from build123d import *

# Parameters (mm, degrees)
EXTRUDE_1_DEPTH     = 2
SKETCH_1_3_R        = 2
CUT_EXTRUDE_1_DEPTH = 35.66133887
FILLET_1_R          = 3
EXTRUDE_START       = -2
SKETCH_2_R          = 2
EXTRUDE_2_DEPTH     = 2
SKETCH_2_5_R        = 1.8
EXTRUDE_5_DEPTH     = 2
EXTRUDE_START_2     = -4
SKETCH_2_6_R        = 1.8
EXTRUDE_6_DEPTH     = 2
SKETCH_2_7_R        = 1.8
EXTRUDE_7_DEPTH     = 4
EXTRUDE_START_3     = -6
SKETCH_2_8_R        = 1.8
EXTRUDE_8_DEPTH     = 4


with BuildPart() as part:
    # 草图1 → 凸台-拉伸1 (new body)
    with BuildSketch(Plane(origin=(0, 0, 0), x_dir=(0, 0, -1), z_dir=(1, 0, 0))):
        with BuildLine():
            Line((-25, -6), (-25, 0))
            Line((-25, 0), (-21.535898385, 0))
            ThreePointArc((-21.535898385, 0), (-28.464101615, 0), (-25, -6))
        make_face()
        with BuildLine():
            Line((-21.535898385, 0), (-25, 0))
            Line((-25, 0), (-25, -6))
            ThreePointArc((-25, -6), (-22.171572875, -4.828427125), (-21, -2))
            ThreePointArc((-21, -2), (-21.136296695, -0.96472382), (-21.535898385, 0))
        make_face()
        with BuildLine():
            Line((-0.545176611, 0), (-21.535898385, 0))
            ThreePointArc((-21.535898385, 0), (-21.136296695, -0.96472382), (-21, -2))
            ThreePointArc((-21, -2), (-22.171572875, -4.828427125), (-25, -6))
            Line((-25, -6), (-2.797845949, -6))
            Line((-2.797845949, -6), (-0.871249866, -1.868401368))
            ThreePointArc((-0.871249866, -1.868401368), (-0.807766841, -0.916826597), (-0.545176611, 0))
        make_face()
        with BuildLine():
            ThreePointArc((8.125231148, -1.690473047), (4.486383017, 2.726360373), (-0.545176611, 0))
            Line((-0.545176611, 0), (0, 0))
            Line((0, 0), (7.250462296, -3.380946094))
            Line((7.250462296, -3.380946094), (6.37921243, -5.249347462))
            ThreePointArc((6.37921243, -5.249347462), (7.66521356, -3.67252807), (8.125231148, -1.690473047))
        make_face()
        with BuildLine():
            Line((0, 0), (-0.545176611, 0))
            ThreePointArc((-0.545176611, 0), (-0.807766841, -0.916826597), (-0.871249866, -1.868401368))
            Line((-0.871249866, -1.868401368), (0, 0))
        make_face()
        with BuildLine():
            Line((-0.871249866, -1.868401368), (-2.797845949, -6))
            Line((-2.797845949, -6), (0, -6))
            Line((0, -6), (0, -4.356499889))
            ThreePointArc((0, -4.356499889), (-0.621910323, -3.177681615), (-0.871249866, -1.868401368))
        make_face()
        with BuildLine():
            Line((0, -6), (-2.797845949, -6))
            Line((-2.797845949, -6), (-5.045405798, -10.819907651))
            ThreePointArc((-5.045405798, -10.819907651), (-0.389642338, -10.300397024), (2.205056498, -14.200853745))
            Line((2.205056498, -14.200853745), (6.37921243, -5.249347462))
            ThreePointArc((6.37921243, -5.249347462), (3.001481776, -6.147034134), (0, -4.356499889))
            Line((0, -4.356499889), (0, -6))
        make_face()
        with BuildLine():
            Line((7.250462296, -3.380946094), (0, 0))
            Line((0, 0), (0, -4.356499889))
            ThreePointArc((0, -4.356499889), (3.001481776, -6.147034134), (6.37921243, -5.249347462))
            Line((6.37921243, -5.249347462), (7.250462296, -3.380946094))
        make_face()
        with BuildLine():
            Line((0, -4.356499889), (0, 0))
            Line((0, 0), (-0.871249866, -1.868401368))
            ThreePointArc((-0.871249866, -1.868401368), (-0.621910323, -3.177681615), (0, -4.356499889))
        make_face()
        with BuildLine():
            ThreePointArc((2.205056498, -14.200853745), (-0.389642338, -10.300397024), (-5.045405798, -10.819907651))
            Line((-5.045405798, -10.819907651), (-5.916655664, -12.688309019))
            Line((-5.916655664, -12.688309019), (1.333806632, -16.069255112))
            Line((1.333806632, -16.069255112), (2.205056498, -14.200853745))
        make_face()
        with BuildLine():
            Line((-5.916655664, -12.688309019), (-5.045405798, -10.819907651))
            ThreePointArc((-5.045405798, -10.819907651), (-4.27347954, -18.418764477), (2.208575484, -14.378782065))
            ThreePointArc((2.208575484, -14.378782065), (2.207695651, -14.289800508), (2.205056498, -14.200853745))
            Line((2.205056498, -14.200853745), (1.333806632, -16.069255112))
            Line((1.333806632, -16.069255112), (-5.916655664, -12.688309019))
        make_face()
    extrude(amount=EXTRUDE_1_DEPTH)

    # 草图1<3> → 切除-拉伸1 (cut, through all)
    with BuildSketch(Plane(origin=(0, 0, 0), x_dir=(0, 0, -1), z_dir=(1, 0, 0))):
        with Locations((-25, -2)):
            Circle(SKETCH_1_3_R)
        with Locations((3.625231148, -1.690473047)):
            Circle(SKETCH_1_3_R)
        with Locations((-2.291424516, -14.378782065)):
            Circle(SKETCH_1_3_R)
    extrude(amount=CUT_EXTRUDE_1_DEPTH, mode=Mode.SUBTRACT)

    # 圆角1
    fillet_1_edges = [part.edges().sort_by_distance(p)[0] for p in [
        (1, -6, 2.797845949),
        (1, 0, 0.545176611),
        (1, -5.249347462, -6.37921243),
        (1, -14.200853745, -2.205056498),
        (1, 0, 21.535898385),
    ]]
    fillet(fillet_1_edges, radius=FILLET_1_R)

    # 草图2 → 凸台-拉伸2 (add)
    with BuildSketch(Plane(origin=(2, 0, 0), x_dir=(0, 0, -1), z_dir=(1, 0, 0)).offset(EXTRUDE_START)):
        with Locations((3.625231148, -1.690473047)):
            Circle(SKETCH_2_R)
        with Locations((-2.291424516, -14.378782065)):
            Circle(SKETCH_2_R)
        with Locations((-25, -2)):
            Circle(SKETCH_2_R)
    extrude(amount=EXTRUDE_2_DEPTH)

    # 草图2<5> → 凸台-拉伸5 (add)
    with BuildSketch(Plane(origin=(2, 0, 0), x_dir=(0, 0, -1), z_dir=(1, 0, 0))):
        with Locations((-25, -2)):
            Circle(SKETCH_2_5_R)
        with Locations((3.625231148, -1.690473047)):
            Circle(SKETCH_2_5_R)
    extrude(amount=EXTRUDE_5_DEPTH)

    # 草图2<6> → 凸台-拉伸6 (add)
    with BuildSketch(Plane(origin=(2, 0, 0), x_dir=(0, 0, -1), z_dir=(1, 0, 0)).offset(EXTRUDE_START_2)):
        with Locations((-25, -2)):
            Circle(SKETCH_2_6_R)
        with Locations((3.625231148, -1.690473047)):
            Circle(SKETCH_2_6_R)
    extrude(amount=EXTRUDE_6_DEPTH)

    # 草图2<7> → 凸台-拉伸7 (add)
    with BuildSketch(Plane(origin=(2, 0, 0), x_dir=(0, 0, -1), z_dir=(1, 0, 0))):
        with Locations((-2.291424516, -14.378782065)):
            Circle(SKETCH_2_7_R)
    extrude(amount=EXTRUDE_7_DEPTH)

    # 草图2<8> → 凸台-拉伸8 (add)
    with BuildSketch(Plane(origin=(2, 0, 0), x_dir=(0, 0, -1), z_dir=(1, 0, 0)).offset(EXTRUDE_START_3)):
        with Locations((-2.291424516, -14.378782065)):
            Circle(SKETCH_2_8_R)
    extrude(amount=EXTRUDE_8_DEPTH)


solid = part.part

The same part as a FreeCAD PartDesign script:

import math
import FreeCAD as App
import Part
import Sketcher
Q = App.Units.Quantity


def edges_at(feature, points):
    """Names of the edges that pass closest to the given points."""
    edges = feature.Shape.Edges
    near = lambda p: min(range(len(edges)), key=lambda i: edges[i].distToShape(Part.Vertex(*p))[0])
    return sorted({f"Edge{near(p) + 1}" for p in points})

doc = App.newDocument("Part")
body = doc.addObject("PartDesign::Body", "Body")

sketch1 = body.newObject("Sketcher::SketchObject", "Sketch")
sketch1.AttachmentSupport = (doc.getObject("YZ_Plane"), [""])
sketch1.MapMode = "FlatFace"
sketch1.addGeometry(Part.LineSegment(App.Vector(-14.200854, -2.205056, 0), App.Vector(-5.249347, -6.379212, 0)), False)
sketch1.addGeometry(Part.ArcOfCircle(Part.Circle(App.Vector(-1.690473, -3.625231, 0), App.Vector(0, 0, 1), 4.5), math.radians(-142.266044), math.radians(-90)), False)
sketch1.addGeometry(Part.ArcOfCircle(Part.Circle(App.Vector(-1.690473, -3.625231, 0), App.Vector(0, 0, 1), 4.5), math.radians(-90), math.radians(67.934847)), False)
sketch1.addGeometry(Part.LineSegment(App.Vector(0, 0.545177, 0), App.Vector(0, 21.535898, 0)), False)
sketch1.addGeometry(Part.ArcOfCircle(Part.Circle(App.Vector(-2, 25, 0), App.Vector(0, 0, 1), 4), math.radians(-60), math.radians(180)), False)
sketch1.addGeometry(Part.LineSegment(App.Vector(-6, 25, 0), App.Vector(-6, 2.797846, 0)), False)
sketch1.addGeometry(Part.LineSegment(App.Vector(-6, 2.797846, 0), App.Vector(-10.819908, 5.045406, 0)), False)
sketch1.addGeometry(Part.ArcOfCircle(Part.Circle(App.Vector(-14.378782, 2.291425, 0), App.Vector(0, 0, 1), 4.5), math.radians(37.733956), math.radians(270)), False)
sketch1.addGeometry(Part.ArcOfCircle(Part.Circle(App.Vector(-14.378782, 2.291427, 0), App.Vector(0, 0, 1), 4.500002), math.radians(-89.999999), math.radians(-87.733956)), False)
sketch1.addConstraint(Sketcher.Constraint("Coincident", 0, 2, 1, 1))
sketch1.addConstraint(Sketcher.Constraint("Tangent", 1, 2, 2, 1))
sketch1.addConstraint(Sketcher.Constraint("Coincident", 2, 2, 3, 1))
sketch1.addConstraint(Sketcher.Constraint("Coincident", 3, 2, 4, 1))
sketch1.addConstraint(Sketcher.Constraint("Tangent", 4, 2, 5, 1))
sketch1.addConstraint(Sketcher.Constraint("Coincident", 5, 2, 6, 1))
sketch1.addConstraint(Sketcher.Constraint("Coincident", 6, 2, 7, 1))
sketch1.addConstraint(Sketcher.Constraint("Tangent", 7, 2, 8, 1))
sketch1.addConstraint(Sketcher.Constraint("Coincident", 8, 2, 0, 1))
sketch1.addConstraint(Sketcher.Constraint("Vertical", 3))
sketch1.addConstraint(Sketcher.Constraint("Vertical", 5))
sketch1.addConstraint(Sketcher.Constraint("Equal", 1, 2))
sketch1.addConstraint(Sketcher.Constraint("Equal", 2, 7))
sketch1.addConstraint(Sketcher.Constraint("PointOnObject", 2, 2, -2))
sketch1.addConstraint(Sketcher.Constraint("Parallel", 0, 6))
sketch1.addConstraint(Sketcher.Constraint("Vertical", 2, 3, 1, 2))
sketch1.addConstraint(Sketcher.Constraint("Vertical", 8, 3, 7, 2))
sketch1.addConstraint(Sketcher.Constraint("Radius", 4, 4.0))
sketch1.addConstraint(Sketcher.Constraint("Radius", 1, 4.5))
sketch1.addConstraint(Sketcher.Constraint("Angle", 0, Q("-25 deg")))
sketch1.addConstraint(Sketcher.Constraint("DistanceX", 4, 3, -1, 1, 2.0))
sketch1.addConstraint(Sketcher.Constraint("DistanceY", -1, 1, 4, 3, 25.0))
sketch1.addConstraint(Sketcher.Constraint("Radius", 8, 4.500002))
sketch1.addConstraint(Sketcher.Constraint("DistanceY", 3, 1, 3, 2, 20.990722))
sketch1.addConstraint(Sketcher.Constraint("Distance", 6, 5.31818))
sketch1.addConstraint(Sketcher.Constraint("DistanceY", 5, 2, 5, 1, 22.202154))
sketch1.addConstraint(Sketcher.Constraint("DistanceY", 1, 3, -1, 1, 3.625231))
sketch1.addConstraint(Sketcher.Constraint("DistanceX", 7, 3, 1, 3, 12.688309))
sketch1.addConstraint(Sketcher.Constraint("DistanceY", 0, 2, 1, 3, 2.753981))
pad1 = body.newObject("PartDesign::Pad", "Pad")
pad1.Profile = sketch1
pad1.Length = 2

sketch2 = body.newObject("Sketcher::SketchObject", "Sketch001")
sketch2.AttachmentSupport = (doc.getObject("YZ_Plane"), [""])
sketch2.MapMode = "FlatFace"
sketch2.addGeometry(Part.Circle(App.Vector(-2, 25, 0), App.Vector(0, 0, 1), 2), False)
sketch2.addGeometry(Part.Circle(App.Vector(-1.690473, -3.625231, 0), App.Vector(0, 0, 1), 2), False)
sketch2.addGeometry(Part.Circle(App.Vector(-14.378782, 2.291425, 0), App.Vector(0, 0, 1), 2), False)
sketch2.addConstraint(Sketcher.Constraint("Equal", 0, 1))
sketch2.addConstraint(Sketcher.Constraint("Equal", 1, 2))
sketch2.addConstraint(Sketcher.Constraint("Diameter", 0, 4.0))
sketch2.addConstraint(Sketcher.Constraint("DistanceX", 0, 3, -1, 1, 2.0))
sketch2.addConstraint(Sketcher.Constraint("DistanceY", -1, 1, 0, 3, 25.0))
sketch2.addConstraint(Sketcher.Constraint("DistanceY", 1, 3, -1, 1, 3.625231))
sketch2.addConstraint(Sketcher.Constraint("DistanceX", 2, 3, 1, 3, 12.688309))
sketch2.addConstraint(Sketcher.Constraint("DistanceX", 1, 3, -1, 1, 1.690473))
sketch2.addConstraint(Sketcher.Constraint("DistanceY", -1, 1, 2, 3, 2.291425))
pocket1 = body.newObject("PartDesign::Pocket", "Pocket")
pocket1.Profile = sketch2
pocket1.Type = "ThroughAll"
pocket1.Reversed = True
doc.recompute()

fillet = body.newObject("PartDesign::Fillet", "Fillet")
fillet.Base = (pocket1, edges_at(pocket1, [
    (1, -6, 2.798),
    (1, 0, 0.545),
    (1, -5.249, -6.379),
    (1, -14.201, -2.205),
    (1, 0, 21.536),
]))
fillet.Radius = 3

sketch3 = body.newObject("Sketcher::SketchObject", "Sketch002")
sketch3.AttachmentSupport = (doc.getObject("YZ_Plane"), [""])
sketch3.MapMode = "FlatFace"
sketch3.addGeometry(Part.Circle(App.Vector(-1.690473, -3.625231, 0), App.Vector(0, 0, 1), 2), False)
sketch3.addGeometry(Part.Circle(App.Vector(-14.378782, 2.291425, 0), App.Vector(0, 0, 1), 2), False)
sketch3.addGeometry(Part.Circle(App.Vector(-2, 25, 0), App.Vector(0, 0, 1), 2), False)
sketch3.addConstraint(Sketcher.Constraint("Equal", 0, 1))
sketch3.addConstraint(Sketcher.Constraint("Equal", 1, 2))
sketch3.addConstraint(Sketcher.Constraint("Diameter", 0, 4.0))
sketch3.addConstraint(Sketcher.Constraint("DistanceX", 2, 3, -1, 1, 2.0))
sketch3.addConstraint(Sketcher.Constraint("DistanceY", -1, 1, 2, 3, 25.0))
sketch3.addConstraint(Sketcher.Constraint("DistanceY", 0, 3, -1, 1, 3.625231))
sketch3.addConstraint(Sketcher.Constraint("DistanceX", 1, 3, 0, 3, 12.688309))
sketch3.addConstraint(Sketcher.Constraint("DistanceX", 0, 3, -1, 1, 1.690473))
sketch3.addConstraint(Sketcher.Constraint("DistanceY", -1, 1, 1, 3, 2.291425))
pad2 = body.newObject("PartDesign::Pad", "Pad001")
pad2.Profile = sketch3
pad2.Length = 2

sketch4 = body.newObject("Sketcher::SketchObject", "Sketch003")
sketch4.AttachmentSupport = (doc.getObject("YZ_Plane"), [""])
sketch4.MapMode = "FlatFace"
sketch4.AttachmentOffset = App.Placement(App.Vector(0, 0, 2), App.Rotation())
sketch4.addGeometry(Part.Circle(App.Vector(-2, 25, 0), App.Vector(0, 0, 1), 1.8), False)
sketch4.addGeometry(Part.Circle(App.Vector(-1.690473, -3.625231, 0), App.Vector(0, 0, 1), 1.8), False)
sketch4.addConstraint(Sketcher.Constraint("Equal", 0, 1))
sketch4.addConstraint(Sketcher.Constraint("Diameter", 0, 3.6))
sketch4.addConstraint(Sketcher.Constraint("DistanceX", 0, 3, -1, 1, 2.0))
sketch4.addConstraint(Sketcher.Constraint("DistanceY", -1, 1, 0, 3, 25.0))
sketch4.addConstraint(Sketcher.Constraint("DistanceY", 1, 3, -1, 1, 3.625231))
sketch4.addConstraint(Sketcher.Constraint("DistanceX", 1, 3, -1, 1, 1.690473))
pad3 = body.newObject("PartDesign::Pad", "Pad002")
pad3.Profile = sketch4
pad3.Length = 2

sketch5 = body.newObject("Sketcher::SketchObject", "Sketch004")
sketch5.AttachmentSupport = (doc.getObject("YZ_Plane"), [""])
sketch5.MapMode = "FlatFace"
sketch5.AttachmentOffset = App.Placement(App.Vector(0, 0, -2), App.Rotation())
sketch5.addGeometry(Part.Circle(App.Vector(-2, 25, 0), App.Vector(0, 0, 1), 1.8), False)
sketch5.addGeometry(Part.Circle(App.Vector(-1.690473, -3.625231, 0), App.Vector(0, 0, 1), 1.8), False)
sketch5.addConstraint(Sketcher.Constraint("Equal", 0, 1))
sketch5.addConstraint(Sketcher.Constraint("Diameter", 0, 3.6))
sketch5.addConstraint(Sketcher.Constraint("DistanceX", 0, 3, -1, 1, 2.0))
sketch5.addConstraint(Sketcher.Constraint("DistanceY", -1, 1, 0, 3, 25.0))
sketch5.addConstraint(Sketcher.Constraint("DistanceY", 1, 3, -1, 1, 3.625231))
sketch5.addConstraint(Sketcher.Constraint("DistanceX", 1, 3, -1, 1, 1.690473))
pad4 = body.newObject("PartDesign::Pad", "Pad003")
pad4.Profile = sketch5
pad4.Length = 2

sketch6 = body.newObject("Sketcher::SketchObject", "Sketch005")
sketch6.AttachmentSupport = (doc.getObject("YZ_Plane"), [""])
sketch6.MapMode = "FlatFace"
sketch6.AttachmentOffset = App.Placement(App.Vector(0, 0, 2), App.Rotation())
sketch6.addGeometry(Part.Circle(App.Vector(-14.378782, 2.291425, 0), App.Vector(0, 0, 1), 1.8), False)
sketch6.addConstraint(Sketcher.Constraint("Diameter", 0, 3.6))
sketch6.addConstraint(Sketcher.Constraint("DistanceX", 0, 3, -1, 1, 14.378782))
sketch6.addConstraint(Sketcher.Constraint("DistanceY", -1, 1, 0, 3, 2.291425))
pad5 = body.newObject("PartDesign::Pad", "Pad004")
pad5.Profile = sketch6
pad5.Length = 4

sketch7 = body.newObject("Sketcher::SketchObject", "Sketch006")
sketch7.AttachmentSupport = (doc.getObject("YZ_Plane"), [""])
sketch7.MapMode = "FlatFace"
sketch7.AttachmentOffset = App.Placement(App.Vector(0, 0, -4), App.Rotation())
sketch7.addGeometry(Part.Circle(App.Vector(-14.378782, 2.291425, 0), App.Vector(0, 0, 1), 1.8), False)
sketch7.addConstraint(Sketcher.Constraint("Diameter", 0, 3.6))
sketch7.addConstraint(Sketcher.Constraint("DistanceX", 0, 3, -1, 1, 14.378782))
sketch7.addConstraint(Sketcher.Constraint("DistanceY", -1, 1, 0, 3, 2.291425))
pad6 = body.newObject("PartDesign::Pad", "Pad005")
pad6.Profile = sketch7
pad6.Length = 4

doc.recompute()
